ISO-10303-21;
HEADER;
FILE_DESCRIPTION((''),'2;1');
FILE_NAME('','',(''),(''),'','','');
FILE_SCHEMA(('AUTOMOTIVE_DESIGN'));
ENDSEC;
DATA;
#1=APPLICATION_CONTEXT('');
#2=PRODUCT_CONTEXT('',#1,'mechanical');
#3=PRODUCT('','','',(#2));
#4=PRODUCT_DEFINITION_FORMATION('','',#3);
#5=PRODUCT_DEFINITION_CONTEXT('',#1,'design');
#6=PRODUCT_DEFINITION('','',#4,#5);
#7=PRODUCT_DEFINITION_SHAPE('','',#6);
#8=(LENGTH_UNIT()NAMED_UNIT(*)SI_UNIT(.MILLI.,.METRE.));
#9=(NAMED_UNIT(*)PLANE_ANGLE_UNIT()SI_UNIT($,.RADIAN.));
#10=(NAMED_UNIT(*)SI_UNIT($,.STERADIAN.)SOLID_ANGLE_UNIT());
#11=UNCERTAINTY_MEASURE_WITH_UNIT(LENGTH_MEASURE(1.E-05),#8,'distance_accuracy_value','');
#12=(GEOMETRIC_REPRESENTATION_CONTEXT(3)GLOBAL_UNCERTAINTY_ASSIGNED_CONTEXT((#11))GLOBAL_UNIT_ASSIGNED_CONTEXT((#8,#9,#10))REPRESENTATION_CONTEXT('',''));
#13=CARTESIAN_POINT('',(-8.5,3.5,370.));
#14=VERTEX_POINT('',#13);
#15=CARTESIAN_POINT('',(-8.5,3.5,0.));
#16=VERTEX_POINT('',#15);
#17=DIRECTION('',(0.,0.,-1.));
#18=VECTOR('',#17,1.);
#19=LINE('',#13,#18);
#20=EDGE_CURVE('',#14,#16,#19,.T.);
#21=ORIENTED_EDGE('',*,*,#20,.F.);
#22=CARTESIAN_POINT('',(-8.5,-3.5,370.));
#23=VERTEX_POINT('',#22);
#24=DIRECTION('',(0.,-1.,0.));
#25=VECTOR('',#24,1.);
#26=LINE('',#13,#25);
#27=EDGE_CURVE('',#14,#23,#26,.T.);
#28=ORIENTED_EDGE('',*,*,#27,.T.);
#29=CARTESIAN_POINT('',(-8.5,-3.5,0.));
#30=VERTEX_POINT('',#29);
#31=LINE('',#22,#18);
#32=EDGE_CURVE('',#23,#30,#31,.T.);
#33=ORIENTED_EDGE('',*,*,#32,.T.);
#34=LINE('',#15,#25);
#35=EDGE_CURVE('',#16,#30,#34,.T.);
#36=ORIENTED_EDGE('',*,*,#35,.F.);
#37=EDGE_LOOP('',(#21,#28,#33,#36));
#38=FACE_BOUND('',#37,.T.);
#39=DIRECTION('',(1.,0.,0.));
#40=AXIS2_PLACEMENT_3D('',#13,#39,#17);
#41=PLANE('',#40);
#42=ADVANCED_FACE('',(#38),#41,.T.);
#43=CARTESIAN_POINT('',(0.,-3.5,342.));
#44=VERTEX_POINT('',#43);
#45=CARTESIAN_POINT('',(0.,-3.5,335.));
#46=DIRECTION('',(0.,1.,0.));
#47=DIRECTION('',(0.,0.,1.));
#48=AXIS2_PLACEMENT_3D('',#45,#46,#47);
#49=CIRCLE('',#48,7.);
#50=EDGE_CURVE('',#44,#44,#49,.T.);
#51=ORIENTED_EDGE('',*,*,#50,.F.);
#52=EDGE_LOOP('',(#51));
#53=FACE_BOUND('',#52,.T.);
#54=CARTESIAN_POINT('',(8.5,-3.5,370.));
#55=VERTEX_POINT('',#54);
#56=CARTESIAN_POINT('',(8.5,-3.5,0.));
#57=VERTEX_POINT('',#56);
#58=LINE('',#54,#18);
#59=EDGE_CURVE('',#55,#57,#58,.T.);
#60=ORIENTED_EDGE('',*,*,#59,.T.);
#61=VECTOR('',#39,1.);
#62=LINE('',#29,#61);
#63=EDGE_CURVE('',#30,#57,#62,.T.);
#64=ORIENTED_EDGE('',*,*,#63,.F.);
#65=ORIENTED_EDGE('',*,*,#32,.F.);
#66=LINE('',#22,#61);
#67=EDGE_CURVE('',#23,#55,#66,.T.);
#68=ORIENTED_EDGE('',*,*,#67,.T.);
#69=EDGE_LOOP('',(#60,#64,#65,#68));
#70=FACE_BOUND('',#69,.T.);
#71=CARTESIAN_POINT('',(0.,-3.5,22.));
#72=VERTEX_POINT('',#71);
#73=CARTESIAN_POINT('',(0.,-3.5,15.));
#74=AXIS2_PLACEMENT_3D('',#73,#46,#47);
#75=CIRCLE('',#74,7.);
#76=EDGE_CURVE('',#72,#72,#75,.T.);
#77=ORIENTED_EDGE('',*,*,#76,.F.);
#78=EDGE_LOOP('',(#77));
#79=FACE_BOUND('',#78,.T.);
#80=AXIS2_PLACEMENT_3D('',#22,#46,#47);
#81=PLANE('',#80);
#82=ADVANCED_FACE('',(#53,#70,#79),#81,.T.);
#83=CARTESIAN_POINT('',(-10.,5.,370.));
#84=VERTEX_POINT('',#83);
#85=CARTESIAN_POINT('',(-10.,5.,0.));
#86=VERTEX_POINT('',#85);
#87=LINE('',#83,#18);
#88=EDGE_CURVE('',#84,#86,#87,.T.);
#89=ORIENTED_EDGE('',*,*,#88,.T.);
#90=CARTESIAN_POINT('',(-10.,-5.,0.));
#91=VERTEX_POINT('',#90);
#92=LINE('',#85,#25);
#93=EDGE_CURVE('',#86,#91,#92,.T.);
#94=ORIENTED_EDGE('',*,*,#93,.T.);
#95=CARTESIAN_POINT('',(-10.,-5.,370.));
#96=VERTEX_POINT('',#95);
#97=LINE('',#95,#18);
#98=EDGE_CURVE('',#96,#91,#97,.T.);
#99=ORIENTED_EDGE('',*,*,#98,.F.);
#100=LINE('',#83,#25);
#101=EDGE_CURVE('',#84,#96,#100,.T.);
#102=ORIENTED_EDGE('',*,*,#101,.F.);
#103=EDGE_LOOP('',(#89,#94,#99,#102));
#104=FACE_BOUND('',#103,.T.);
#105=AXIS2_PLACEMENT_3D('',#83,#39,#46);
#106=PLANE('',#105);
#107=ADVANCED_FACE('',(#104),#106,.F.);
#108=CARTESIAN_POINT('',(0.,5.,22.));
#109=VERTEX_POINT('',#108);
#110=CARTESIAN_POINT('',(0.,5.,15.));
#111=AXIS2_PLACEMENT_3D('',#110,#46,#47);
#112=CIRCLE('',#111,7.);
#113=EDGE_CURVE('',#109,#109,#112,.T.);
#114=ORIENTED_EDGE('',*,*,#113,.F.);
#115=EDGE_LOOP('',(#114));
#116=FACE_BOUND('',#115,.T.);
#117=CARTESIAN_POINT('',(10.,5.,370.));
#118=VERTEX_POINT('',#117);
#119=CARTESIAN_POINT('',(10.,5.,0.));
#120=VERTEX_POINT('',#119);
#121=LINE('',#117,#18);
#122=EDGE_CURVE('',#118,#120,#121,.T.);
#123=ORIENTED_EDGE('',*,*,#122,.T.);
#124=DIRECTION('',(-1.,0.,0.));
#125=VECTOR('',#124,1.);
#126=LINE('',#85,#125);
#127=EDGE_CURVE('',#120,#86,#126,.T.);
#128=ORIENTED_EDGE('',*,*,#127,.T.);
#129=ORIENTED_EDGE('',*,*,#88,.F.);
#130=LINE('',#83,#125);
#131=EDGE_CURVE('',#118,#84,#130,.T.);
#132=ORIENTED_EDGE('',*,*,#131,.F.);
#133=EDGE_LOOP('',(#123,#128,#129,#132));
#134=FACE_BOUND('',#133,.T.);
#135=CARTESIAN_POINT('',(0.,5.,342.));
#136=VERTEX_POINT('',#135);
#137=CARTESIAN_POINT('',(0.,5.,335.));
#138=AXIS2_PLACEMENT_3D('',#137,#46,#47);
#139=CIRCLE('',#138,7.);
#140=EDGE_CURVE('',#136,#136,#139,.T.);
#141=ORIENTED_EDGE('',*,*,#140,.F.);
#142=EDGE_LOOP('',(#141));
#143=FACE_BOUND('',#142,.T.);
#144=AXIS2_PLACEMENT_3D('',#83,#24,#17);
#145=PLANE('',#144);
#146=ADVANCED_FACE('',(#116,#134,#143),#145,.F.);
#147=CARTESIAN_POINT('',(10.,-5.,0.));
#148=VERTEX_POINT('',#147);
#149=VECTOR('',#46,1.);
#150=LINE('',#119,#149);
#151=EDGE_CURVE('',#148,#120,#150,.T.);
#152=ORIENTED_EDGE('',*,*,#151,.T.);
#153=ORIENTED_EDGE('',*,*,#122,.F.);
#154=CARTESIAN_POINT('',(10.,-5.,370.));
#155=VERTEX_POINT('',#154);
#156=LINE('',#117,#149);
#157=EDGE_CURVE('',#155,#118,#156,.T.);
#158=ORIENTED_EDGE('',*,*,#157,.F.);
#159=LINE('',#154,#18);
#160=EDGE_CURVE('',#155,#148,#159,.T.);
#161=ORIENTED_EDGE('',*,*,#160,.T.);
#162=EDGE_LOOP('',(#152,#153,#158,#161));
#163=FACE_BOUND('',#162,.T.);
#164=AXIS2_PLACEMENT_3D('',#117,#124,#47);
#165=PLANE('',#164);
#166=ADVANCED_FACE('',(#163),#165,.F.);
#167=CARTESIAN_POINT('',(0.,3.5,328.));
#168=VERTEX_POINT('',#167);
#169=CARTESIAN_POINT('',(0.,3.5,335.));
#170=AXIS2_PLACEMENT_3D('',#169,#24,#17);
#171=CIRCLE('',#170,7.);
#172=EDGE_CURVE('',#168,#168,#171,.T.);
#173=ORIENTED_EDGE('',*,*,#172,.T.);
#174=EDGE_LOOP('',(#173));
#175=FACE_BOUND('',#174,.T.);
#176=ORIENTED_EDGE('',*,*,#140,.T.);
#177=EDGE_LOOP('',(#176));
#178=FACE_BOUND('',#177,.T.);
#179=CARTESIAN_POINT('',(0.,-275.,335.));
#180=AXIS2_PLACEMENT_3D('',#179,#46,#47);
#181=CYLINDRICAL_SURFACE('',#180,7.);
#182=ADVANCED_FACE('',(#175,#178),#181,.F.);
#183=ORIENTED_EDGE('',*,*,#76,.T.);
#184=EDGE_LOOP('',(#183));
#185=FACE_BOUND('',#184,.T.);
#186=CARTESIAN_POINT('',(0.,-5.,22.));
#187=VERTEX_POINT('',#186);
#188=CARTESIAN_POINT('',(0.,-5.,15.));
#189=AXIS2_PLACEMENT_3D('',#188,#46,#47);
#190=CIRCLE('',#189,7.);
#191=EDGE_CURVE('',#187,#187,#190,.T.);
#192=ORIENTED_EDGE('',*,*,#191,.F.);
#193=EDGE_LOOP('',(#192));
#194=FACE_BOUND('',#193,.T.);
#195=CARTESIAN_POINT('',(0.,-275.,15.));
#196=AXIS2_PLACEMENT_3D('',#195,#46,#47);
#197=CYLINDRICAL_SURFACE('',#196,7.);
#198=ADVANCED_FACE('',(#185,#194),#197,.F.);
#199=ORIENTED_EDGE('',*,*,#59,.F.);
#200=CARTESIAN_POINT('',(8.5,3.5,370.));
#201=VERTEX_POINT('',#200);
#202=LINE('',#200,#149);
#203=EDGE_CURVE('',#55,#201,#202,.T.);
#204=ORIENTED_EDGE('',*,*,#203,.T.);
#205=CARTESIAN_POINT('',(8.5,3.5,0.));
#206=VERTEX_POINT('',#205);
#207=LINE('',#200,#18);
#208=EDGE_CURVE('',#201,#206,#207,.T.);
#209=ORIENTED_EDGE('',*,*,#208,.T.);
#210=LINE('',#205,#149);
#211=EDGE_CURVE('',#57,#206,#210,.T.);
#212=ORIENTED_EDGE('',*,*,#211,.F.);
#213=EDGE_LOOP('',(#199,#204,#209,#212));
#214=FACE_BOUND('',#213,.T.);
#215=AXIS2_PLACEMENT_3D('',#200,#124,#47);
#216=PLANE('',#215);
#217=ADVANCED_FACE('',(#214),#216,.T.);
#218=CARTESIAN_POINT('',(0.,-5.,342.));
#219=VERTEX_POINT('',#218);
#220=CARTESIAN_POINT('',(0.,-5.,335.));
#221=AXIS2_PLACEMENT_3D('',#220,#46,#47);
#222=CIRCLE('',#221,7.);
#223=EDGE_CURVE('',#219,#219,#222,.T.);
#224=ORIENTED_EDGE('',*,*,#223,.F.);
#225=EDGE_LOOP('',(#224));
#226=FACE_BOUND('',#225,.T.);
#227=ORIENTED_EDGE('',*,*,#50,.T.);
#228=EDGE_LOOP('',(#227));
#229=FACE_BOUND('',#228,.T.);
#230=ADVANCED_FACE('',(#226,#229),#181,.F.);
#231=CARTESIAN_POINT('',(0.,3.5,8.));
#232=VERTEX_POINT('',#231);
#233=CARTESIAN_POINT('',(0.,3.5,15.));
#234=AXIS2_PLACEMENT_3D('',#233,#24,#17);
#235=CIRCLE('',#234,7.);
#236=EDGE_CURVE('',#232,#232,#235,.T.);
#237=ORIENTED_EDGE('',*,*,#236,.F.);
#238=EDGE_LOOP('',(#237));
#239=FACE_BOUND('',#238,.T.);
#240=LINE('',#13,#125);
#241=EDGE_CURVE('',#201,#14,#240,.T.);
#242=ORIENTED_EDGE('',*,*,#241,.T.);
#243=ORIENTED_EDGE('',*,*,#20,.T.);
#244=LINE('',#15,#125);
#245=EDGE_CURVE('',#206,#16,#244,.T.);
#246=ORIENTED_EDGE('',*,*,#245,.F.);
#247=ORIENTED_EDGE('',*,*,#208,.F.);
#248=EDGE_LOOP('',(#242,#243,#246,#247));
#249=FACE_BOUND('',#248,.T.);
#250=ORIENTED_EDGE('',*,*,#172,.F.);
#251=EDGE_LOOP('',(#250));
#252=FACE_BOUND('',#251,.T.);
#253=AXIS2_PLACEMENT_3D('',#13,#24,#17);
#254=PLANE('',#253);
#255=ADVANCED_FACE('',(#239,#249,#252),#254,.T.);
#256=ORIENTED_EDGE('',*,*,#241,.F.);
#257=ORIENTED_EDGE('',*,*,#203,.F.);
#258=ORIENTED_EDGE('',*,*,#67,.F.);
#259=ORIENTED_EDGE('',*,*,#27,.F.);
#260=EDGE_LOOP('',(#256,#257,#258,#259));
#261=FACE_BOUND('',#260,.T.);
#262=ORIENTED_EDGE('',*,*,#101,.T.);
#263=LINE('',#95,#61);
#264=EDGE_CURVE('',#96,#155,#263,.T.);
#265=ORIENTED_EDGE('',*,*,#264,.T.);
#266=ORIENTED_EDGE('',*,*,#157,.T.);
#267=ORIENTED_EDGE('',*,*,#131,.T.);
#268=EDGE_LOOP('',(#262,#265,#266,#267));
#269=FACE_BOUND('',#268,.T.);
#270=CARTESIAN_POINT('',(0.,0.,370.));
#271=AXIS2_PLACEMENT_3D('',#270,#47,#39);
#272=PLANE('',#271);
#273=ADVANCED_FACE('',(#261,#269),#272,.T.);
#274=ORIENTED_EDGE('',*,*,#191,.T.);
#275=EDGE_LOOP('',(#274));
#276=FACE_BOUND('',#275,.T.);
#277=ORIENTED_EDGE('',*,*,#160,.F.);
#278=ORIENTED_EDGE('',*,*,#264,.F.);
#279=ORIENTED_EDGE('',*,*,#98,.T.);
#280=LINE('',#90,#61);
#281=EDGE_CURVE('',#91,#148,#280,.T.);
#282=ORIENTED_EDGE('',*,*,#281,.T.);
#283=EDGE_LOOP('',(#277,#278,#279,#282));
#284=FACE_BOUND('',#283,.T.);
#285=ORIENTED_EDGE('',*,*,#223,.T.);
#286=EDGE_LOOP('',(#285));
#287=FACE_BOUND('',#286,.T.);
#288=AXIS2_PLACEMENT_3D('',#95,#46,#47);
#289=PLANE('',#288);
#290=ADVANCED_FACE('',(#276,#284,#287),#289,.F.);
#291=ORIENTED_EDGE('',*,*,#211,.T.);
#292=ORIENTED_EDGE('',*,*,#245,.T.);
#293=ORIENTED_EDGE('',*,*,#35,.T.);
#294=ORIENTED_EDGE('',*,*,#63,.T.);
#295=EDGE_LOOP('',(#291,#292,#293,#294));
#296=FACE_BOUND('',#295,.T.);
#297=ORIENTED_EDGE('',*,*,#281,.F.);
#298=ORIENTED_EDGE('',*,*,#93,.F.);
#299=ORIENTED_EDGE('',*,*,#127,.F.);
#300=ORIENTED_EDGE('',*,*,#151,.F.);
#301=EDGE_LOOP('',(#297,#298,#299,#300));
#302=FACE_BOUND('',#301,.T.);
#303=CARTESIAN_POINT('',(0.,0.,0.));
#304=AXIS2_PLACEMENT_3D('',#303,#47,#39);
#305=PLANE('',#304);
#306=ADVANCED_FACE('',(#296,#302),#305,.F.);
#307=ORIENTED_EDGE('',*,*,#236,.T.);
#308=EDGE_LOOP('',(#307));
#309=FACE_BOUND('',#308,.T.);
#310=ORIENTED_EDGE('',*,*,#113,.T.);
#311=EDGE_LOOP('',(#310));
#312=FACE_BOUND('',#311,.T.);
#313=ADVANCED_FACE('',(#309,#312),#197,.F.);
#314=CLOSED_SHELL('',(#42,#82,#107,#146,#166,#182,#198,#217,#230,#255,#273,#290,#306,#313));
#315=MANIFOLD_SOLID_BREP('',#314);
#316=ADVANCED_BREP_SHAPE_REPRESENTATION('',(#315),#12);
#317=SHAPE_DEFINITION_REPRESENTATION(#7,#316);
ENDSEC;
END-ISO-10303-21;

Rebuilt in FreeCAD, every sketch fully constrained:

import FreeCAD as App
import Part
import Sketcher
Q = App.Units.Quantity


def add_polygon(sketch, points):
    """Adds a closed chain of lines whose ends are joined by coincident constraints."""
    first, n = sketch.GeometryCount, len(points)
    for a, b in zip(points, points[1:] + points[:1]):
        sketch.addGeometry(Part.LineSegment(App.Vector(*a, 0), App.Vector(*b, 0)), False)
    for i in range(n):
        sketch.addConstraint(Sketcher.Constraint("Coincident", first + i, 2, first + (i + 1) % n, 1))

doc = App.newDocument("Part")
body = doc.addObject("PartDesign::Body", "Body")

sketch1 = doc.addObject("Sketcher::SketchObject", "Sketch")
body.addObject(sketch1)
sketch1.AttachmentSupport = (doc.XY_Plane, [""])
sketch1.MapMode = "FlatFace"
add_polygon(sketch1, [(-10, 5), (-10, -5), (10, -5), (10, 5)])
add_polygon(sketch1, [(8, -4), (-8, -4), (-8, 4), (8, 4)])
sketch1.addConstraint([
    Sketcher.Constraint("Vertical", 0),
    Sketcher.Constraint("Horizontal", 1),
    Sketcher.Constraint("Vertical", 2),
    Sketcher.Constraint("Horizontal", 3),
    Sketcher.Constraint("Horizontal", 4),
    Sketcher.Constraint("Vertical", 5),
    Sketcher.Constraint("Horizontal", 6),
    Sketcher.Constraint("Vertical", 7),
    Sketcher.Constraint("Symmetric", 0, 2, 2, 2, -1, 1),
    Sketcher.Constraint("Symmetric", 4, 2, 6, 2, -1, 1),
    Sketcher.Constraint("DistanceX", 1, 1, 1, 2, Q("20 mm")),
    Sketcher.Constraint("DistanceX", 4, 2, 4, 1, Q("17 mm")),
    Sketcher.Constraint("DistanceY", 0, 2, 0, 1, Q("10 mm")),
    Sketcher.Constraint("DistanceY", 5, 1, 5, 2, Q("7 mm")),
])
pad1 = doc.addObject("PartDesign::Pad", "Pad")
body.addObject(pad1)
pad1.Profile = sketch1
pad1.Length = 370

sketch2 = doc.addObject("Sketcher::SketchObject", "Sketch001")
body.addObject(sketch2)
sketch2.AttachmentSupport = (doc.XZ_Plane, [""])
sketch2.MapMode = "FlatFace"
sketch2.AttachmentOffset = App.Placement(App.Vector(0, 0, -5), App.Rotation())
sketch2.addGeometry([
    Part.Circle(App.Vector(0, 15, 0), App.Vector(0, 0, 1), 7),
    Part.Circle(App.Vector(0, 335, 0), App.Vector(0, 0, 1), 7),
], False)
sketch2.addConstraint([
    Sketcher.Constraint("Equal", 0, 1),
    Sketcher.Constraint("PointOnObject", 0, 3, -2),
    Sketcher.Constraint("PointOnObject", 1, 3, -2),
    Sketcher.Constraint("Diameter", 0, Q("14 mm")),
    Sketcher.Constraint("DistanceY", -1, 1, 0, 3, Q("15 mm")),
    Sketcher.Constraint("DistanceY", -1, 1, 1, 3, Q("335 mm")),
])
pocket1 = doc.addObject("PartDesign::Pocket", "Pocket")
body.addObject(pocket1)
pocket1.Profile = sketch2
pocket1.Length = 280
pocket1.Reversed = True

doc.recompute()
